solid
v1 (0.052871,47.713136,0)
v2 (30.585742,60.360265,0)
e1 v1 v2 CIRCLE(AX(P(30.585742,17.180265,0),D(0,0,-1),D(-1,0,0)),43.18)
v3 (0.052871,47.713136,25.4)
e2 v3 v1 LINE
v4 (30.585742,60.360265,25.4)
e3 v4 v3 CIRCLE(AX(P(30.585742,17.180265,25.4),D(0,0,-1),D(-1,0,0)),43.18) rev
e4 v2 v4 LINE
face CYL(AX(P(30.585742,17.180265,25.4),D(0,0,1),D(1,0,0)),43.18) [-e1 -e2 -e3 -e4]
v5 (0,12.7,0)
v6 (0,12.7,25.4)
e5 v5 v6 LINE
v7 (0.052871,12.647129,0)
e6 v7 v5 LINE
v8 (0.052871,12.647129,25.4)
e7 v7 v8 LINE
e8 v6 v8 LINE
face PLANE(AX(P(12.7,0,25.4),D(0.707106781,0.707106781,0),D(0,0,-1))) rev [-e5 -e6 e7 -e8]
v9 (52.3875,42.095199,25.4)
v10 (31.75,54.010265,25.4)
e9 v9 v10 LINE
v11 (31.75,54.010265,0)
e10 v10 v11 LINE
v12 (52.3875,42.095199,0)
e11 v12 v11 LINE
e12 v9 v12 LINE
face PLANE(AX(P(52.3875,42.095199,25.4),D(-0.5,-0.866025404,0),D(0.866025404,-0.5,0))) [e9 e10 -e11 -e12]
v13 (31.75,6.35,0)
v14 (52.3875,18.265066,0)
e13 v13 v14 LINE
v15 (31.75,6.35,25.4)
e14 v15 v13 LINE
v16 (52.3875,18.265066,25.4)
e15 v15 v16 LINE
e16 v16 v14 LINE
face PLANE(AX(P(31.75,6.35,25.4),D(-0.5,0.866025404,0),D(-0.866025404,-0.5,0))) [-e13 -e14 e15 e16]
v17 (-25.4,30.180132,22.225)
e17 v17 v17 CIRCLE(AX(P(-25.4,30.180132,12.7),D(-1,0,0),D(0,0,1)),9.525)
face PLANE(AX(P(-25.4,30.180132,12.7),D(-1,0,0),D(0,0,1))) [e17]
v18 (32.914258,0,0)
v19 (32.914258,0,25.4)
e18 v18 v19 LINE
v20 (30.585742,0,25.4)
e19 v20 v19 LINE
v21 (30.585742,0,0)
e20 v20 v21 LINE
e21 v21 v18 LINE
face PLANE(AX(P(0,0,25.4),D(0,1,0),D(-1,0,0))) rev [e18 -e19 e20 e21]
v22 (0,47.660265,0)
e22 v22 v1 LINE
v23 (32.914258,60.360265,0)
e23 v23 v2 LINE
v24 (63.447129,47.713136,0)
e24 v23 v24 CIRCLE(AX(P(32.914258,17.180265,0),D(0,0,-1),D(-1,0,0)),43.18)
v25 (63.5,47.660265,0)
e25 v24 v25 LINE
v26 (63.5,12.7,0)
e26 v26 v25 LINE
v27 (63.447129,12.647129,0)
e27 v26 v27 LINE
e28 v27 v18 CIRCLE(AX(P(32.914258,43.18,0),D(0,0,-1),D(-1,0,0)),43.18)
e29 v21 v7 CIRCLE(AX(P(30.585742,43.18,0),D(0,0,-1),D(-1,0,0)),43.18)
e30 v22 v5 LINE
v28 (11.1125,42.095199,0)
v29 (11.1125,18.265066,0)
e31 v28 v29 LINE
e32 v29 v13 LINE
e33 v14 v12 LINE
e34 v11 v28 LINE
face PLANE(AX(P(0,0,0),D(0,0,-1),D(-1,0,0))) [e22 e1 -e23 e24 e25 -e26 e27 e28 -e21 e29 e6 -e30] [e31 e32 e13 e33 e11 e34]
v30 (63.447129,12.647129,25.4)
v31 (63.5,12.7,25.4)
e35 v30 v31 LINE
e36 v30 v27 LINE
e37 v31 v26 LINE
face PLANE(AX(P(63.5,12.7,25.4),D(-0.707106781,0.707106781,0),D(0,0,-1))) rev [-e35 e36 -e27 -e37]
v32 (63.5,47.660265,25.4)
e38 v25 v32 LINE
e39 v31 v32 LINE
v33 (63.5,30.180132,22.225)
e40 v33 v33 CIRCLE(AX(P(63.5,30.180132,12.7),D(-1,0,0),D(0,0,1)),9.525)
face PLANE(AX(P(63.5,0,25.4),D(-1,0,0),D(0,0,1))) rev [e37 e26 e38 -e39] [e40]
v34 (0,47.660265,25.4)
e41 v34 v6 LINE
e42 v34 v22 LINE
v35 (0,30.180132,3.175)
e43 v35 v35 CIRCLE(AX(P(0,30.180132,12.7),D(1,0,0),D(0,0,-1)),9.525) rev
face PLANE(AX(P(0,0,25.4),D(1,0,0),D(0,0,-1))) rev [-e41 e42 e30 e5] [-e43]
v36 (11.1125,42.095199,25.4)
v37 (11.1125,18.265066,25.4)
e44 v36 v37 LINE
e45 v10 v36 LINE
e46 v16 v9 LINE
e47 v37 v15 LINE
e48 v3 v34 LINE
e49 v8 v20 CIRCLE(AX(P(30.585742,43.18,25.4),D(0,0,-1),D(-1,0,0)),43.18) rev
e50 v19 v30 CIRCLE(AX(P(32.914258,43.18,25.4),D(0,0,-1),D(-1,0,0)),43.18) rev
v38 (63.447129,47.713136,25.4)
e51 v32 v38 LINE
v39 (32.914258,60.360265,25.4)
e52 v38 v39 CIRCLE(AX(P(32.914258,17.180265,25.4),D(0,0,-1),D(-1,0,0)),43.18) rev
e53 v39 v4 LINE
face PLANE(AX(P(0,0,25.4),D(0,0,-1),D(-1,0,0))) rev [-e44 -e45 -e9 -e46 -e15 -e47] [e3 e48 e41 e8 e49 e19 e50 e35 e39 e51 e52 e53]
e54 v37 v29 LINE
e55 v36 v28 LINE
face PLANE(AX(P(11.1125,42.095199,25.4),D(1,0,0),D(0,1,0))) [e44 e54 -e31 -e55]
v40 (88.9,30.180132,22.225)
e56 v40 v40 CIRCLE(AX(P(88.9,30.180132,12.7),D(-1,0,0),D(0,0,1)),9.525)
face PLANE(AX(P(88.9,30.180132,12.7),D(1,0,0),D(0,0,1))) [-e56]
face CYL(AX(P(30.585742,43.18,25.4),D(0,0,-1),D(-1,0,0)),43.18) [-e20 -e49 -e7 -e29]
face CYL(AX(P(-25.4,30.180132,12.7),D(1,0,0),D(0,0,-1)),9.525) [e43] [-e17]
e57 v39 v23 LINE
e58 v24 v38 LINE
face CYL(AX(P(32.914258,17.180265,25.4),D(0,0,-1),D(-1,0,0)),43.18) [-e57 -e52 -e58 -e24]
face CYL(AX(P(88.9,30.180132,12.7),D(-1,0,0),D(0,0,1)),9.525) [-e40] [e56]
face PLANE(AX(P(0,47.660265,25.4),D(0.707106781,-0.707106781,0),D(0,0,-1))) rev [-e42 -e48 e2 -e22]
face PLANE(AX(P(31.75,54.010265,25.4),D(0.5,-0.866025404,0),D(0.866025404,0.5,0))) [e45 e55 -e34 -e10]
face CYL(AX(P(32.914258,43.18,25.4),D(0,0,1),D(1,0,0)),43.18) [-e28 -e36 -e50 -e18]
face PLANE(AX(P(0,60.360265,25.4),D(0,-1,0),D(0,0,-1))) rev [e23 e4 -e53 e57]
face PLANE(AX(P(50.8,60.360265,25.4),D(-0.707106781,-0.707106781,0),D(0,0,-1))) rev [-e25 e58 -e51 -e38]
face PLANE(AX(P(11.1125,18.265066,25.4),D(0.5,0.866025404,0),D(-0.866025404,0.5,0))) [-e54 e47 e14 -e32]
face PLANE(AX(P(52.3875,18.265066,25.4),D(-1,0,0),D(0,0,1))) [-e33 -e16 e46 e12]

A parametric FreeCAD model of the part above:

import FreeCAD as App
import Part
import Sketcher
from FreeCAD import Vector
Q = App.Units.Quantity


def edges_at(feature, points):
    """Names of the edges that pass closest to the given points."""
    edges = feature.Shape.Edges
    near = lambda p: min(range(len(edges)), key=lambda i: edges[i].distToShape(Part.Vertex(*p))[0])
    return sorted({f"Edge{near(p) + 1}" for p in points})

doc = App.newDocument("Part")
body = doc.addObject("PartDesign::Body", "Body")

# Sketch on XY plane
sketch1 = doc.addObject("Sketcher::SketchObject", "Sketch")
body.addObject(sketch1)
sketch1.AttachmentSupport = (doc.XY_Plane, [""])
sketch1.MapMode = "FlatFace"
sketch1.addGeometry([
    Part.LineSegment(Vector(0, 60.360265, 0), Vector(0, 0, 0)),  # 0
    Part.LineSegment(Vector(0, 0, 0), Vector(63.5, 0, 0)),  # 1
    Part.LineSegment(Vector(63.5, 0, 0), Vector(63.5, 60.360265, 0)),  # 2
    Part.LineSegment(Vector(63.5, 60.360265, 0), Vector(0, 60.360265, 0)),  # 3
    Part.LineSegment(Vector(11.1125, 18.265066, 0), Vector(11.1125, 42.095199, 0)),  # 4
    Part.LineSegment(Vector(11.1125, 42.095199, 0), Vector(31.75, 54.010265, 0)),  # 5
    Part.LineSegment(Vector(31.75, 54.010265, 0), Vector(52.3875, 42.095199, 0)),  # 6
    Part.LineSegment(Vector(52.3875, 42.095199, 0), Vector(52.3875, 18.265066, 0)),  # 7
    Part.LineSegment(Vector(52.3875, 18.265066, 0), Vector(31.75, 6.35, 0)),  # 8
    Part.LineSegment(Vector(31.75, 6.35, 0), Vector(11.1125, 18.265066, 0)),  # 9
], False)
sketch1.addConstraint([
    Sketcher.Constraint("Coincident", 0, 2, 1, 1),
    Sketcher.Constraint("Coincident", 1, 2, 2, 1),
    Sketcher.Constraint("Coincident", 2, 2, 3, 1),
    Sketcher.Constraint("Coincident", 3, 2, 0, 1),
    Sketcher.Constraint("Coincident", 4, 2, 5, 1),
    Sketcher.Constraint("Coincident", 5, 2, 6, 1),
    Sketcher.Constraint("Coincident", 6, 2, 7, 1),
    Sketcher.Constraint("Coincident", 7, 2, 8, 1),
    Sketcher.Constraint("Coincident", 8, 2, 9, 1),
    Sketcher.Constraint("Coincident", 9, 2, 4, 1),
    Sketcher.Constraint("Vertical", 0),
    Sketcher.Constraint("Horizontal", 1),
    Sketcher.Constraint("Vertical", 2),
    Sketcher.Constraint("Horizontal", 3),
    Sketcher.Constraint("Vertical", 4),
    Sketcher.Constraint("Vertical", 7),
    Sketcher.Constraint("Coincident", 0, 2, -1, 1),
    Sketcher.Constraint("Parallel", 5, 8),
    Sketcher.Constraint("Parallel", 6, 9),
    Sketcher.Constraint("Horizontal", 4, 2, 6, 2),
    Sketcher.Constraint("Horizontal", 7, 2, 9, 2),
    Sketcher.Constraint("Vertical", 5, 2, 8, 2),
    Sketcher.Constraint("DistanceX", 1, 1, 1, 2, Q("2.5 in")),
    Sketcher.Constraint("Angle", 5, Q("30 deg")),
    Sketcher.Constraint("DistanceX", -1, 1, 5, 2, Q("1.25 in")),
    Sketcher.Constraint("DistanceY", -1, 1, 8, 2, Q("0.25 in")),
    Sketcher.Constraint("DistanceY", 5, 2, 2, 2, Q("0.25 in")),
    Sketcher.Constraint("DistanceX", -1, 1, 4, 2, Q("0.4375 in")),
    Sketcher.Constraint("DistanceY", -1, 1, 4, 2, 42.095199),
])
pad1 = doc.addObject("PartDesign::Pad", "Pad")
body.addObject(pad1)
pad1.Profile = sketch1
pad1.Length = Q("1 in")
doc.recompute()

chamfer = doc.addObject("PartDesign::Chamfer", "Chamfer")
body.addObject(chamfer)
chamfer.Base = (pad1, edges_at(pad1, [
    (0, 60.36, 12.7),
    (63.5, 60.36, 12.7),
    (63.5, 0, 12.7),
    (0, 0, 12.7),
]))
chamfer.Size = Q("0.5 in")

# Sketch on YZ plane
sketch2 = doc.addObject("Sketcher::SketchObject", "Sketch001")
body.addObject(sketch2)
sketch2.AttachmentSupport = (doc.YZ_Plane, [""])
sketch2.MapMode = "FlatFace"
sketch2.addGeometry(Part.Circle(Vector(30.180132, 12.7, 0), Vector(0, 0, 1), 9.525), False)
sketch2.addConstraint([
    Sketcher.Constraint("Diameter", 0, Q("0.75 in")),
    Sketcher.Constraint("DistanceY", -1, 1, 0, 3, Q("0.5 in")),
    Sketcher.Constraint("DistanceX", -1, 1, 0, 3, 30.180132),
])
pad2 = doc.addObject("PartDesign::Pad", "Pad001")
body.addObject(pad2)
pad2.Profile = sketch2
pad2.Length = Q("1 in")
pad2.Reversed = True
doc.recompute()

datumplane = doc.addObject("PartDesign::Plane", "DatumPlane")
body.addObject(datumplane)
datumplane.AttachmentSupport = (doc.YZ_Plane, [""])
datumplane.MapMode = "FlatFace"
datumplane.AttachmentOffset = App.Placement(Vector(0, 0, 1.25 * 25.4), App.Rotation())
mirrored = doc.addObject("PartDesign::Mirrored", "Mirrored")
body.addObject(mirrored)
mirrored.Originals = [pad2]
mirrored.MirrorPlane = (datumplane, [""])
body.Tip = mirrored
doc.recompute()

fillet = doc.addObject("PartDesign::Fillet", "Fillet")
body.addObject(fillet)
fillet.Base = (mirrored, edges_at(mirrored, [
    (12.7, 60.36, 12.7),
    (50.8, 60.36, 12.7),
    (12.7, 0, 12.7),
    (50.8, 0, 12.7),
]))
fillet.Radius = Q("1.7 in")

doc.recompute()
